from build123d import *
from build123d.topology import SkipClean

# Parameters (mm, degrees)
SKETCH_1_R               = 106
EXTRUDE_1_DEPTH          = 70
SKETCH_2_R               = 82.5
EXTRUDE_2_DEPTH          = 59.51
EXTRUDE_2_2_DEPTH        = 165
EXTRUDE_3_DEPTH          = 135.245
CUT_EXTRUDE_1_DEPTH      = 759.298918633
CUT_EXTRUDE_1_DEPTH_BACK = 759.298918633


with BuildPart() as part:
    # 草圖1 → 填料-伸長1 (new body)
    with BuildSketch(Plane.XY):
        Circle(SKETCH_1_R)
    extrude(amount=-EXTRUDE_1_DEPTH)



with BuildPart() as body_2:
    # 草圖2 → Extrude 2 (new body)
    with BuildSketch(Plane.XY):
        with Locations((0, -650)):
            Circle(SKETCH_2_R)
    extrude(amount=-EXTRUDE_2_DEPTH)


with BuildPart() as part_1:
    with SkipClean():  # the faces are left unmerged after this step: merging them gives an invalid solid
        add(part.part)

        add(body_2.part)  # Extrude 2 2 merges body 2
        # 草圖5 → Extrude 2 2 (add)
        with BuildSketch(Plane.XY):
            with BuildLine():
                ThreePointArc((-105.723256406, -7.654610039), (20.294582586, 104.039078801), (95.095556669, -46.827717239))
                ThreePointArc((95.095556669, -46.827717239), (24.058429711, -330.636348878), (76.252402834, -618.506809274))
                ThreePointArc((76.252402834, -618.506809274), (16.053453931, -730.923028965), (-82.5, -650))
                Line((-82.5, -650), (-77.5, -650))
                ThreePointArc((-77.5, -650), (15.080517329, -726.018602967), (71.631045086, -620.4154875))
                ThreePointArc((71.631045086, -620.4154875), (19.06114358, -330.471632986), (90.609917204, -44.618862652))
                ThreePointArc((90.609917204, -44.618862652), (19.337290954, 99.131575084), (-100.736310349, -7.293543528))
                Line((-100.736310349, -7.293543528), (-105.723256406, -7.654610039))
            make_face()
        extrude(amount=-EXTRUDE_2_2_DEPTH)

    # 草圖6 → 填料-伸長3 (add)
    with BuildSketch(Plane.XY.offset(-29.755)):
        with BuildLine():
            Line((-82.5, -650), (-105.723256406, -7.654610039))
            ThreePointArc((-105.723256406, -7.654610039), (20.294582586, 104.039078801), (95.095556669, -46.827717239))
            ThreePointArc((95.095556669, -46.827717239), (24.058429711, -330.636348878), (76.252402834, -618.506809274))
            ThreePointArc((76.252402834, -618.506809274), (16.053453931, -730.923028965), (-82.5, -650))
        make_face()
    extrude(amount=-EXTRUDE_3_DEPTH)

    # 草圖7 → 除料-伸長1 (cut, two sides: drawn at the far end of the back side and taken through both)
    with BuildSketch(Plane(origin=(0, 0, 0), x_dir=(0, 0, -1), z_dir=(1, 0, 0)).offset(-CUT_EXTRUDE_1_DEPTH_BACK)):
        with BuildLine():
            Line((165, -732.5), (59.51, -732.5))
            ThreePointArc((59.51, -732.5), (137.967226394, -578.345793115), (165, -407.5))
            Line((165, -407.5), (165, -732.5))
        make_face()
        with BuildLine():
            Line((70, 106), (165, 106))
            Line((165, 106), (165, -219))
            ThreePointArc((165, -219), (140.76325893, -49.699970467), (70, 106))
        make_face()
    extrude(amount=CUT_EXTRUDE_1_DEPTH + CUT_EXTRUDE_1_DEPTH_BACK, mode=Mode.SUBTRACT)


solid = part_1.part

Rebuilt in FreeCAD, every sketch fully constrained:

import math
import FreeCAD as App
import Part
import Sketcher

doc = App.newDocument("Part")
body = doc.addObject("PartDesign::Body", "Body")

# Sketch on XY plane
sketch1 = body.newObject("Sketcher::SketchObject", "Sketch")
sketch1.AttachmentSupport = (doc.getObject("XY_Plane"), [""])
sketch1.MapMode = "FlatFace"
sketch1.addGeometry(Part.Circle(App.Vector(0, 0, 0), App.Vector(0, 0, 1), 106), False)
sketch1.addConstraint(Sketcher.Constraint("Coincident", 0, 3, -1, 1))
sketch1.addConstraint(Sketcher.Constraint("Diameter", 0, 212.0))
pad1 = body.newObject("PartDesign::Pad", "Pad")
pad1.Profile = sketch1
pad1.Length = 70
pad1.Reversed = True
body2 = doc.addObject("PartDesign::Body", "Body001")

# Sketch on XY plane
sketch2 = body2.newObject("Sketcher::SketchObject", "Sketch001")
sketch2.AttachmentSupport = (doc.getObject("XY_Plane001"), [""])
sketch2.MapMode = "FlatFace"
sketch2.addGeometry(Part.Circle(App.Vector(0, -650, 0), App.Vector(0, 0, 1), 82), False)
sketch2.addConstraint(Sketcher.Constraint("PointOnObject", 0, 3, -2))
sketch2.addConstraint(Sketcher.Constraint("Diameter", 0, 165.0))
sketch2.addConstraint(Sketcher.Constraint("DistanceY", 0, 3, -1, 1, 650.0))
pad2 = body2.newObject("PartDesign::Pad", "Pad001")
pad2.Profile = sketch2
pad2.Length = 59.51
pad2.Reversed = True
body.AllowCompound = True
doc.recompute()

boolean = body.newObject("PartDesign::Boolean", "Boolean")
boolean.Type = "Fuse"
boolean.addObjects([body2])

# Sketch on XY plane
sketch3 = body.newObject("Sketcher::SketchObject", "Sketch002")
sketch3.AttachmentSupport = (doc.getObject("XY_Plane"), [""])
sketch3.MapMode = "FlatFace"
sketch3.addGeometry(Part.ArcOfCircle(Part.Circle(App.Vector(0, 0, 0), App.Vector(0, 0, 1), 106), math.radians(-26), math.radians(184)), False)
sketch3.addGeometry(Part.LineSegment(App.Vector(-106, -8, 0), App.Vector(-101, -7, 0)), False)
sketch3.addGeometry(Part.ArcOfCircle(Part.Circle(App.Vector(0, 0, 0), App.Vector(0, 0, 1), 101), math.radians(-26), math.radians(184)), False)
sketch3.addGeometry(Part.ArcOfCircle(Part.Circle(App.Vector(718, -354, 0), App.Vector(0, 0, 1), 699), math.radians(154), math.radians(202)), False)
sketch3.addGeometry(Part.ArcOfCircle(Part.Circle(App.Vector(0, -650, 0), App.Vector(0, 0, 1), 78), math.radians(180), math.radians(382)), False)
sketch3.addGeometry(Part.LineSegment(App.Vector(-78, -650, 0), App.Vector(-82, -650, 0)), False)
sketch3.addGeometry(Part.ArcOfCircle(Part.Circle(App.Vector(0, -650, 0), App.Vector(0, 0, 1), 82), math.radians(180), math.radians(382)), False)
sketch3.addGeometry(Part.ArcOfCircle(Part.Circle(App.Vector(718, -354, 0), App.Vector(0, 0, 1), 694), math.radians(154), math.radians(202)), False)
sketch3.addConstraint(Sketcher.Constraint("Coincident", 0, 2, 1, 1))
sketch3.addConstraint(Sketcher.Constraint("Coincident", 1, 2, 2, 2))
sketch3.addConstraint(Sketcher.Constraint("Tangent", 2, 1, 3, 1))
sketch3.addConstraint(Sketcher.Constraint("Tangent", 3, 2, 4, 2))
sketch3.addConstraint(Sketcher.Constraint("Coincident", 4, 1, 5, 1))
sketch3.addConstraint(Sketcher.Constraint("Coincident", 5, 2, 6, 1))
sketch3.addConstraint(Sketcher.Constraint("Tangent", 6, 2, 7, 2))
sketch3.addConstraint(Sketcher.Constraint("Tangent", 7, 1, 0, 1))
sketch3.addConstraint(Sketcher.Constraint("Horizontal", 5))
sketch3.addConstraint(Sketcher.Constraint("Coincident", 0, 3, -1, 1))
sketch3.addConstraint(Sketcher.Constraint("Coincident", 2, 3, -1, 1))
sketch3.addConstraint(Sketcher.Constraint("Coincident", 6, 3, 4, 3))
sketch3.addConstraint(Sketcher.Constraint("Coincident", 7, 3, 3, 3))
sketch3.addConstraint(Sketcher.Constraint("PointOnObject", 4, 3, -2))
sketch3.addConstraint(Sketcher.Constraint("Horizontal", 6, 3, 4, 1))
sketch3.addConstraint(Sketcher.Constraint("Radius", 0, 106.0))
sketch3.addConstraint(Sketcher.Constraint("Radius", 2, 101.0))
sketch3.addConstraint(Sketcher.Constraint("Radius", 4, 77.5))
sketch3.addConstraint(Sketcher.Constraint("DistanceY", 4, 3, -1, 1, 650.0))
sketch3.addConstraint(Sketcher.Constraint("Radius", 3, 699.201016))
sketch3.addConstraint(Sketcher.Constraint("DistanceY", 0, 2, -1, 1, 7.65461))
sketch3.addConstraint(Sketcher.Constraint("DistanceX", 1, 2, -1, 1, 100.73631))
pad3 = body.newObject("PartDesign::Pad", "Pad002")
pad3.Profile = sketch3
pad3.Length = 165
pad3.Reversed = True

# Sketch on XY plane
sketch4 = body.newObject("Sketcher::SketchObject", "Sketch003")
sketch4.AttachmentSupport = (doc.getObject("XY_Plane"), [""])
sketch4.MapMode = "FlatFace"
sketch4.AttachmentOffset = App.Placement(App.Vector(0, 0, -29.755), App.Rotation())
sketch4.addGeometry(Part.LineSegment(App.Vector(-106, -8, 0), App.Vector(-82, -650, 0)), False)
sketch4.addGeometry(Part.ArcOfCircle(Part.Circle(App.Vector(0, -650, 0), App.Vector(0, 0, 1), 82), math.radians(180), math.radians(382)), False)
sketch4.addGeometry(Part.ArcOfCircle(Part.Circle(App.Vector(718, -354, 0), App.Vector(0, 0, 1), 694), math.radians(154), math.radians(202)), False)
sketch4.addGeometry(Part.ArcOfCircle(Part.Circle(App.Vector(0, 0, 0), App.Vector(0, 0, 1), 106), math.radians(-26), math.radians(184)), False)
sketch4.addConstraint(Sketcher.Constraint("Coincident", 0, 2, 1, 1))
sketch4.addConstraint(Sketcher.Constraint("Tangent", 1, 2, 2, 2))
sketch4.addConstraint(Sketcher.Constraint("Tangent", 2, 1, 3, 1))
sketch4.addConstraint(Sketcher.Constraint("Coincident", 3, 2, 0, 1))
sketch4.addConstraint(Sketcher.Constraint("Coincident", 3, 3, -1, 1))
sketch4.addConstraint(Sketcher.Constraint("PointOnObject", 1, 3, -2))
sketch4.addConstraint(Sketcher.Constraint("Horizontal", 1, 3, 0, 2))
sketch4.addConstraint(Sketcher.Constraint("Radius", 3, 106.0))
sketch4.addConstraint(Sketcher.Constraint("Radius", 1, 82.5))
sketch4.addConstraint(Sketcher.Constraint("DistanceY", 1, 3, -1, 1, 650.0))
sketch4.addConstraint(Sketcher.Constraint("Radius", 2, 694.201016))
sketch4.addConstraint(Sketcher.Constraint("DistanceY", 1, 2, 3, 2, 610.852199))
pad4 = body.newObject("PartDesign::Pad", "Pad003")
pad4.Profile = sketch4
pad4.Length = 135.245
pad4.Reversed = True

# Sketch on YZ plane
sketch5 = body.newObject("Sketcher::SketchObject", "Sketch004")
sketch5.AttachmentSupport = (doc.getObject("YZ_Plane"), [""])
sketch5.MapMode = "FlatFace"
sketch5.addGeometry(Part.LineSegment(App.Vector(-732, -60, 0), App.Vector(-732, -165, 0)), False)
sketch5.addGeometry(Part.LineSegment(App.Vector(-732, -165, 0), App.Vector(-408, -165, 0)), False)
sketch5.addGeometry(Part.ArcOfCircle(Part.Circle(App.Vector(-408, 388, 0), App.Vector(0, 0, 1), 553), math.radians(-126), math.radians(-90)), False)
sketch5.addGeometry(Part.LineSegment(App.Vector(106, -165, 0), App.Vector(106, -70, 0)), False)
sketch5.addGeometry(Part.ArcOfCircle(Part.Circle(App.Vector(-219, 438, 0), App.Vector(0, 0, 1), 603), math.radians(-90), math.radians(-57)), False)
sketch5.addGeometry(Part.LineSegment(App.Vector(-219, -165, 0), App.Vector(106, -165, 0)), False)
sketch5.addConstraint(Sketcher.Constraint("Coincident", 0, 2, 1, 1))
sketch5.addConstraint(Sketcher.Constraint("Tangent", 1, 2, 2, 2))
sketch5.addConstraint(Sketcher.Constraint("Coincident", 2, 1, 0, 1))
sketch5.addConstraint(Sketcher.Constraint("Coincident", 3, 2, 4, 2))
sketch5.addConstraint(Sketcher.Constraint("Tangent", 4, 1, 5, 1))
sketch5.addConstraint(Sketcher.Constraint("Coincident", 5, 2, 3, 1))
sketch5.addConstraint(Sketcher.Constraint("Vertical", 0))
sketch5.addConstraint(Sketcher.Constraint("Horizontal", 1))
sketch5.addConstraint(Sketcher.Constraint("Vertical", 3))
sketch5.addConstraint(Sketcher.Constraint("Horizontal", 5))
sketch5.addConstraint(Sketcher.Constraint("Horizontal", 1, 2, 4, 1))
sketch5.addConstraint(Sketcher.Constraint("Equal", 1, 5))
sketch5.addConstraint(Sketcher.Constraint("DistanceX", 1, 1, 1, 2, 325.0))
sketch5.addConstraint(Sketcher.Constraint("DistanceY", 3, 1, 3, 2, 95.0))
sketch5.addConstraint(Sketcher.Constraint("DistanceX", 4, 3, -1, 1, 219.0))
sketch5.addConstraint(Sketcher.Constraint("DistanceY", 0, 2, -1, 1, 165.0))
sketch5.addConstraint(Sketcher.Constraint("DistanceY", 0, 2, 0, 1, 105.49))
sketch5.addConstraint(Sketcher.Constraint("DistanceX", 2, 3, -1, 1, 407.5))
pocket1 = body.newObject("PartDesign::Pocket", "Pocket")
pocket1.Profile = sketch5
pocket1.Type = "ThroughAll"
pocket1.Midplane = True

doc.recompute()
